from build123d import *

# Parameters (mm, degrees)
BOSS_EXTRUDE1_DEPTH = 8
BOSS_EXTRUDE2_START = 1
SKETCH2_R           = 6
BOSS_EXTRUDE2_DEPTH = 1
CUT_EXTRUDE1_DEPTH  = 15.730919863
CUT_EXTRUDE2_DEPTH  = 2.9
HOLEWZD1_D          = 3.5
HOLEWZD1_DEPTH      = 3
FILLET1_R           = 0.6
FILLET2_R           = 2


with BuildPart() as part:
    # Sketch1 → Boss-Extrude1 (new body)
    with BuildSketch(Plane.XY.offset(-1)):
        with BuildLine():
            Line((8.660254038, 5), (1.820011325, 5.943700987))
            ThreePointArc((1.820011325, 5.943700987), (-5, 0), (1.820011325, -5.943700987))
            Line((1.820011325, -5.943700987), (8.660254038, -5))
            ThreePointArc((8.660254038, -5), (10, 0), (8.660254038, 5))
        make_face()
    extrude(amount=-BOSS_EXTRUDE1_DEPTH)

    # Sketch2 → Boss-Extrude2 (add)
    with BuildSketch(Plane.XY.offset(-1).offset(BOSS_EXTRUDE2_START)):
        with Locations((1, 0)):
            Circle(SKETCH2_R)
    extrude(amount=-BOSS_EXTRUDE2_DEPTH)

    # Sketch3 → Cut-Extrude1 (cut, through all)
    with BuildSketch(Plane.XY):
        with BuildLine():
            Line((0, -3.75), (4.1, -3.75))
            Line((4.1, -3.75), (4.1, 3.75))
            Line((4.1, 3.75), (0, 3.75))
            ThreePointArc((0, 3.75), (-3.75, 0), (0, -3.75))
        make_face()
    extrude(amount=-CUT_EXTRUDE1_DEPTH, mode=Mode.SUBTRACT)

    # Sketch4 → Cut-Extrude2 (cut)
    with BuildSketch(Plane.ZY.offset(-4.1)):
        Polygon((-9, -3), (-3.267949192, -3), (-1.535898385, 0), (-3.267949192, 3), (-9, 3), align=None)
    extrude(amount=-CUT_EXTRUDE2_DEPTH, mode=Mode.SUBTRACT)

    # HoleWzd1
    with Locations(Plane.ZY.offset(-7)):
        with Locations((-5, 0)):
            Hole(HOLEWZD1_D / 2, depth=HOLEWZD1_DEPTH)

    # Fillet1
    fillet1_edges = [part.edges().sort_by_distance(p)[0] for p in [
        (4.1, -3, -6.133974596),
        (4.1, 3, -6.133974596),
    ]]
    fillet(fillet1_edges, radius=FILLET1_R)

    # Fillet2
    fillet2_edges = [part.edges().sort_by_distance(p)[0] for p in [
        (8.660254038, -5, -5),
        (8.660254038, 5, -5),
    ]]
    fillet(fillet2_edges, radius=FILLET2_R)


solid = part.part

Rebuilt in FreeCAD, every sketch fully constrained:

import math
import FreeCAD as App
import Part
import Sketcher

V = App.Vector
Q = App.Units.Quantity


def edges_at(feature, points):
    """Names of the edges that pass closest to the given points."""
    edges = feature.Shape.Edges
    near = lambda p: min(range(len(edges)), key=lambda i: edges[i].distToShape(Part.Vertex(*p))[0])
    return sorted({f"Edge{near(p) + 1}" for p in points})

doc = App.newDocument("Part")
params = doc.addObject("Spreadsheet::Sheet", "Params")
for row, (alias, value) in enumerate([
    ("sketch1_radius", "6 mm"),
    ("sketch1_radius2", "10 mm"),
    ("pad1_length", "8 mm"),
    ("sketch2_diameter", "12 mm"),
    ("pad2_length", "1 mm"),
    ("sketch3_radius", "3.75 mm"),
    ("sketch3_width", "4.1 mm"),
    ("sketch4_width", "6 mm"),
    ("pocket2_length", "2.9 mm"),
    ("sketch5_diameter", "3.5 mm"),
    ("hole_diameter", "3.5 mm"),
    ("hole_depth", "3 mm"),
    ("fillet_radius", "0.6 mm"),
    ("fillet2_radius", "2 mm"),
], start=1):
    params.set(f"A{row}", alias)
    params.set(f"B{row}", "=" + value)
    params.setAlias(f"B{row}", alias)

body = doc.addObject("PartDesign::Body", "Body")

# Sketch on XY plane
sketch1 = body.newObject("Sketcher::SketchObject", "Sketch")
sketch1.AttachmentSupport = (doc.getObject("XY_Plane"), [""])
sketch1.MapMode = "FlatFace"
sketch1.AttachmentOffset = App.Placement(V(0, 0, -1), App.Rotation())
sketch1.addGeometry([
    Part.LineSegment(V(9, 5, 0), V(2, 6, 0)),
    Part.ArcOfCircle(Part.Circle(V(1, 0, 0), V(0, 0, 1), 6), math.radians(82), math.radians(278)),
    Part.LineSegment(V(2, -6, 0), V(9, -5, 0)),
    Part.ArcOfCircle(Part.Circle(V(0, 0, 0), V(0, 0, 1), 10), math.radians(-30), math.radians(30)),
], False)
sketch1.addConstraint([
    Sketcher.Constraint("Tangent", 0, 2, 1, 1),
    Sketcher.Constraint("Tangent", 1, 2, 2, 1),
    Sketcher.Constraint("Coincident", 2, 2, 3, 1),
    Sketcher.Constraint("Coincident", 3, 2, 0, 1),
    Sketcher.Constraint("Coincident", 3, 3, -1, 1),
    Sketcher.Constraint("Symmetric", 0, 2, 1, 2, -1),
    Sketcher.Constraint("Radius", 1, 6.0),
    Sketcher.Constraint("Radius", 3, 10.0),
    Sketcher.Constraint("DistanceX", -1, 1, 1, 3, 1.0),
    Sketcher.Constraint("DistanceY", 2, 2, -1, 1, 5.0),
])
sketch1.setExpression("Constraints[6]", "Params.sketch1_radius")
sketch1.setExpression("Constraints[7]", "Params.sketch1_radius2")
pad1 = body.newObject("PartDesign::Pad", "Pad")
pad1.Profile = sketch1
pad1.setExpression("Length", "Params.pad1_length")
pad1.Reversed = True

# Sketch on XY plane
sketch2 = body.newObject("Sketcher::SketchObject", "Sketch001")
sketch2.AttachmentSupport = (doc.getObject("XY_Plane"), [""])
sketch2.MapMode = "FlatFace"
sketch2.addGeometry(Part.Circle(V(1, 0, 0), V(0, 0, 1), 6), False)
sketch2.addConstraint([
    Sketcher.Constraint("PointOnObject", 0, 3, -1),
    Sketcher.Constraint("Diameter", 0, 12.0),
    Sketcher.Constraint("DistanceX", -1, 1, 0, 3, 1.0),
])
sketch2.setExpression("Constraints[1]", "Params.sketch2_diameter")
pad2 = body.newObject("PartDesign::Pad", "Pad001")
pad2.Profile = sketch2
pad2.setExpression("Length", "Params.pad2_length")
pad2.Reversed = True

# Sketch on XY plane
sketch3 = body.newObject("Sketcher::SketchObject", "Sketch002")
sketch3.AttachmentSupport = (doc.getObject("XY_Plane"), [""])
sketch3.MapMode = "FlatFace"
sketch3.addGeometry([
    Part.LineSegment(V(0, -3.8, 0), V(4.1, -3.8, 0)),
    Part.LineSegment(V(4.1, -3.8, 0), V(4.1, 3.8, 0)),
    Part.LineSegment(V(4.1, 3.8, 0), V(0, 3.8, 0)),
    Part.ArcOfCircle(Part.Circle(V(0, 0, 0), V(0, 0, 1), 3.8), math.radians(90), math.radians(270)),
], False)
sketch3.addConstraint([
    Sketcher.Constraint("Coincident", 0, 2, 1, 1),
    Sketcher.Constraint("Coincident", 1, 2, 2, 1),
    Sketcher.Constraint("Tangent", 2, 2, 3, 1),
    Sketcher.Constraint("Tangent", 3, 2, 0, 1),
    Sketcher.Constraint("Horizontal", 0),
    Sketcher.Constraint("Vertical", 1),
    Sketcher.Constraint("Horizontal", 2),
    Sketcher.Constraint("Coincident", 3, 3, -1, 1),
    Sketcher.Constraint("Radius", 3, 3.75),
    Sketcher.Constraint("DistanceX", 0, 1, 0, 2, 4.1),
])
sketch3.setExpression("Constraints[8]", "Params.sketch3_radius")
sketch3.setExpression("Constraints[9]", "Params.sketch3_width")
pocket1 = body.newObject("PartDesign::Pocket", "Pocket")
pocket1.Profile = sketch3
pocket1.Type = "ThroughAll"

# Sketch on YZ plane
sketch4 = body.newObject("Sketcher::SketchObject", "Sketch003")
sketch4.AttachmentSupport = (doc.getObject("YZ_Plane"), [""])
sketch4.MapMode = "FlatFace"
sketch4.AttachmentOffset = App.Placement(V(0, 0, 4.1), App.Rotation())
sketch4.addGeometry([
    Part.LineSegment(V(-3, -9, 0), V(-3, -3.3, 0)),  # 0
    Part.LineSegment(V(-3, -3.3, 0), V(0, -1.5, 0)),  # 1
    Part.LineSegment(V(0, -1.5, 0), V(3, -3.3, 0)),  # 2
    Part.LineSegment(V(3, -3.3, 0), V(3, -9, 0)),  # 3
    Part.LineSegment(V(3, -9, 0), V(-3, -9, 0)),  # 4
], False)
sketch4.addConstraint([
    Sketcher.Constraint("Coincident", 0, 2, 1, 1),
    Sketcher.Constraint("Coincident", 1, 2, 2, 1),
    Sketcher.Constraint("Coincident", 2, 2, 3, 1),
    Sketcher.Constraint("Coincident", 3, 2, 4, 1),
    Sketcher.Constraint("Coincident", 4, 2, 0, 1),
    Sketcher.Constraint("Vertical", 0),
    Sketcher.Constraint("Vertical", 3),
    Sketcher.Constraint("Horizontal", 4),
    Sketcher.Constraint("Symmetric", 0, 2, 2, 2, -2),
    Sketcher.Constraint("PointOnObject", 1, 2, -2),
    Sketcher.Constraint("DistanceX", 4, 2, 4, 1, 6.0),
    Sketcher.Constraint("Angle", 1, Q("30 deg")),
    Sketcher.Constraint("DistanceY", 3, 2, -1, 1, 9.0),
    Sketcher.Constraint("DistanceY", 0, 1, 0, 2, 5.732051),
])
sketch4.setExpression("Constraints[10]", "Params.sketch4_width")
pocket2 = body.newObject("PartDesign::Pocket", "Pocket001")
pocket2.Profile = sketch4
pocket2.setExpression("Length", "Params.pocket2_length")
pocket2.Reversed = True

# Sketch on YZ plane
sketch5 = body.newObject("Sketcher::SketchObject", "Sketch004")
sketch5.AttachmentSupport = (doc.getObject("YZ_Plane"), [""])
sketch5.MapMode = "FlatFace"
sketch5.AttachmentOffset = App.Placement(V(0, 0, 7), App.Rotation())
sketch5.addGeometry(Part.Circle(V(0, -5, 0), V(0, 0, 1), 1.8), False)
sketch5.addConstraint([
    Sketcher.Constraint("PointOnObject", 0, 3, -2),
    Sketcher.Constraint("Diameter", 0, 3.5),
    Sketcher.Constraint("DistanceY", 0, 3, -1, 1, 5.0),
])
sketch5.setExpression("Constraints[1]", "Params.sketch5_diameter")
doc.recompute()
hole = body.newObject("PartDesign::Hole", "Hole")
hole.Profile = sketch5
hole.ThreadType = "None"
hole.setExpression("Diameter", "Params.hole_diameter")
hole.DepthType = "Dimension"
hole.setExpression("Depth", "Params.hole_depth")
hole.DrillPoint = "Flat"
hole.Reversed = True
doc.recompute()

fillet = body.newObject("PartDesign::Fillet", "Fillet")
fillet.Base = (hole, edges_at(hole, [(4.1, -3, -6.134), (4.1, 3, -6.134)]))
fillet.setExpression("Radius", "Params.fillet_radius")
doc.recompute()

fillet2 = body.newObject("PartDesign::Fillet", "Fillet001")
fillet2.Base = (fillet, edges_at(fillet, [(8.66, -5, -5), (8.66, 5, -5)]))
fillet2.setExpression("Radius", "Params.fillet2_radius")

doc.recompute()
